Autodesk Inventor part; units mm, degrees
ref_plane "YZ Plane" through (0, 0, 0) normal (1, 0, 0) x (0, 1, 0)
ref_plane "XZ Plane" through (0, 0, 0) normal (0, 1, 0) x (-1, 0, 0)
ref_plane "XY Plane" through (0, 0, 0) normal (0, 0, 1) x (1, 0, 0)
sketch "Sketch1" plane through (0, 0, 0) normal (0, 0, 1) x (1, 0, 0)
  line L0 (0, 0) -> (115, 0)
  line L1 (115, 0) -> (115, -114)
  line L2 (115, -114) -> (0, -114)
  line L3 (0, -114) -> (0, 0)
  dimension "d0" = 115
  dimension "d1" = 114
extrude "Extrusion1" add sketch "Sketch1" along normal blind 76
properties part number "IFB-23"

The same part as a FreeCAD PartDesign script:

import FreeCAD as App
import Part
import Sketcher
from FreeCAD import Vector
Q = App.Units.Quantity


def add_polygon(sketch, points):
    """Adds a closed chain of lines whose ends are joined by coincident constraints."""
    first, n = sketch.GeometryCount, len(points)
    for a, b in zip(points, points[1:] + points[:1]):
        sketch.addGeometry(Part.LineSegment(App.Vector(*a, 0), App.Vector(*b, 0)), False)
    for i in range(n):
        sketch.addConstraint(Sketcher.Constraint("Coincident", first + i, 2, first + (i + 1) % n, 1))

doc = App.newDocument("Part")
body = doc.addObject("PartDesign::Body", "Body")

# Sketch on XY plane
sketch1 = body.newObject("Sketcher::SketchObject", "Sketch")
sketch1.AttachmentSupport = (doc.getObject("XY_Plane"), [""])
sketch1.MapMode = "FlatFace"
add_polygon(sketch1, [(115, 0), (0, 0), (0, -114), (115, -114)])  # lines 0-3
sketch1.addConstraint([
    Sketcher.Constraint("Horizontal", 0),
    Sketcher.Constraint("Vertical", 1),
    Sketcher.Constraint("Horizontal", 2),
    Sketcher.Constraint("Vertical", 3),
    Sketcher.Constraint("Coincident", 0, 2, -1, 1),
    Sketcher.Constraint("DistanceX", 0, 2, 0, 1, Q("115 mm")),
    Sketcher.Constraint("DistanceY", 1, 2, 1, 1, Q("114 mm")),
])
pad1 = body.newObject("PartDesign::Pad", "Pad")
pad1.Profile = sketch1
pad1.Length = 76

doc.recompute()
